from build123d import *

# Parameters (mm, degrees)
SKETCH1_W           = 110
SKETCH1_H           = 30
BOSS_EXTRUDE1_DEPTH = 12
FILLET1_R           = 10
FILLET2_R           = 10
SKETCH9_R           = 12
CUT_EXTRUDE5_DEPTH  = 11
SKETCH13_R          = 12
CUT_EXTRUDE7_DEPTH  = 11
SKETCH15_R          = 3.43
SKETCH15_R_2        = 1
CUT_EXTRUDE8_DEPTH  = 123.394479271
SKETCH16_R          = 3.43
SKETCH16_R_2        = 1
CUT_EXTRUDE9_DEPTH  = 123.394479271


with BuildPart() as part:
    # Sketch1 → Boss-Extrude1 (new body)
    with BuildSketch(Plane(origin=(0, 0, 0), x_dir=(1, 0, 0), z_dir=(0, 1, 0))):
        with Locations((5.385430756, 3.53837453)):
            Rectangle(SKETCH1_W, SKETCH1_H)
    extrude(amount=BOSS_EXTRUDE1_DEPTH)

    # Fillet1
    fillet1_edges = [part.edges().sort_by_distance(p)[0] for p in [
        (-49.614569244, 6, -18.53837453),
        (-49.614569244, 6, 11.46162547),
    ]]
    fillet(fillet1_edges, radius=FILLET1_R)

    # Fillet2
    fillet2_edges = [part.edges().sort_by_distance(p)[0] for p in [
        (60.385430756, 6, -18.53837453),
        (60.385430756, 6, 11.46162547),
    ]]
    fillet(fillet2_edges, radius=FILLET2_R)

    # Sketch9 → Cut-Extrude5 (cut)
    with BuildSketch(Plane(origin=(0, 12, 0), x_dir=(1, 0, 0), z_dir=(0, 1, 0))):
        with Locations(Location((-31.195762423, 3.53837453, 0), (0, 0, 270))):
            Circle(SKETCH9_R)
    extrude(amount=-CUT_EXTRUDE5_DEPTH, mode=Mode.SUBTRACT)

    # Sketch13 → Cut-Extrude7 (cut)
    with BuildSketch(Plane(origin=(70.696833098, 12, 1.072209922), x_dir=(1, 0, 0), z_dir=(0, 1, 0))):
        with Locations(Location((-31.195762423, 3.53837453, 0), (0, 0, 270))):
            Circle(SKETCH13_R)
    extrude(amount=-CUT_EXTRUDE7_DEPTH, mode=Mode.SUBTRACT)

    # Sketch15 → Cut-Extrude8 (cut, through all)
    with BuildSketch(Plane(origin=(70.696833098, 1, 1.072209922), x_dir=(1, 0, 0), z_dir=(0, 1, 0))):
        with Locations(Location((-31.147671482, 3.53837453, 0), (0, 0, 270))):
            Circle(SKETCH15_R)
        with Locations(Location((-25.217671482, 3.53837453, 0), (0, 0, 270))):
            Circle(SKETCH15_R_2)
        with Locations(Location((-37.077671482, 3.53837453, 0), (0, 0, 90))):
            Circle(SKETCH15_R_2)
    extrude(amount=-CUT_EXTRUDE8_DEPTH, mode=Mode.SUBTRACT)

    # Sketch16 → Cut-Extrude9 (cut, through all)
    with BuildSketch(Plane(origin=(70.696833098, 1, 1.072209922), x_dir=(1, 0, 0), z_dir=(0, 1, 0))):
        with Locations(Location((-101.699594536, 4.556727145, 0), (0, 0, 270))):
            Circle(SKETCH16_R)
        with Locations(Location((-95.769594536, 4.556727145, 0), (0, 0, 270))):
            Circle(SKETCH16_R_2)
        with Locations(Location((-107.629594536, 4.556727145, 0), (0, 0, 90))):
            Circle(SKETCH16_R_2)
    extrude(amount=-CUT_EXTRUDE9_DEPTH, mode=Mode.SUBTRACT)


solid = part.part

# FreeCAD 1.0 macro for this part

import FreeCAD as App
import Part
import Sketcher

V = App.Vector
Q = App.Units.Quantity


def edges_at(feature, points):
    """Names of the edges that pass closest to the given points."""
    edges = feature.Shape.Edges
    near = lambda p: min(range(len(edges)), key=lambda i: edges[i].distToShape(Part.Vertex(*p))[0])
    return sorted({f"Edge{near(p) + 1}" for p in points})

doc = App.newDocument("Part")
body = doc.addObject("PartDesign::Body", "Body")

# Sketch on XZ plane
sketch1 = body.newObject("Sketcher::SketchObject", "Sketch")
sketch1.AttachmentSupport = (doc.getObject("XZ_Plane"), [""])
sketch1.MapMode = "FlatFace"
sketch1.addGeometry(Part.LineSegment(V(-49.614569, -18.538375, 0), V(-49.614569, 11.461625, 0)), False)
sketch1.addGeometry(Part.LineSegment(V(-49.614569, 11.461625, 0), V(60.385431, 11.461625, 0)), False)
sketch1.addGeometry(Part.LineSegment(V(60.385431, 11.461625, 0), V(60.385431, -18.538375, 0)), False)
sketch1.addGeometry(Part.LineSegment(V(60.385431, -18.538375, 0), V(-49.614569, -18.538375, 0)), False)
sketch1.addConstraint(Sketcher.Constraint("Coincident", 0, 2, 1, 1))
sketch1.addConstraint(Sketcher.Constraint("Coincident", 1, 2, 2, 1))
sketch1.addConstraint(Sketcher.Constraint("Coincident", 2, 2, 3, 1))
sketch1.addConstraint(Sketcher.Constraint("Coincident", 3, 2, 0, 1))
sketch1.addConstraint(Sketcher.Constraint("Vertical", 0))
sketch1.addConstraint(Sketcher.Constraint("Horizontal", 1))
sketch1.addConstraint(Sketcher.Constraint("Vertical", 2))
sketch1.addConstraint(Sketcher.Constraint("Horizontal", 3))
sketch1.addConstraint(Sketcher.Constraint("DistanceX", 1, 1, 1, 2, Q("110 mm")))
sketch1.addConstraint(Sketcher.Constraint("DistanceY", 0, 1, 0, 2, Q("30 mm")))
sketch1.addConstraint(Sketcher.Constraint("DistanceX", 0, 2, -1, 1, Q("49.614569 mm")))
sketch1.addConstraint(Sketcher.Constraint("DistanceY", -1, 1, 0, 2, Q("11.461625 mm")))
pad1 = body.newObject("PartDesign::Pad", "Pad")
pad1.Profile = sketch1
pad1.Length = 12
pad1.Reversed = True
doc.recompute()

fillet = body.newObject("PartDesign::Fillet", "Fillet")
fillet.Base = (pad1, edges_at(pad1, [(-49.615, 6, -18.538), (-49.615, 6, 11.462)]))
fillet.Radius = 10
doc.recompute()

fillet2 = body.newObject("PartDesign::Fillet", "Fillet001")
fillet2.Base = (fillet, edges_at(fillet, [(60.385, 6, -18.538), (60.385, 6, 11.462)]))
fillet2.Radius = 10

# Sketch on XZ plane
sketch2 = body.newObject("Sketcher::SketchObject", "Sketch001")
sketch2.AttachmentSupport = (doc.getObject("XZ_Plane"), [""])
sketch2.MapMode = "FlatFace"
sketch2.AttachmentOffset = App.Placement(V(0, 0, -12), App.Rotation())
sketch2.addGeometry(Part.Circle(V(-31.195762, -3.538375, 0), V(0, 0, 1), 12), False)
sketch2.addConstraint(Sketcher.Constraint("Diameter", 0, Q("24 mm")))
sketch2.addConstraint(Sketcher.Constraint("DistanceX", 0, 3, -1, 1, Q("31.195762 mm")))
sketch2.addConstraint(Sketcher.Constraint("DistanceY", 0, 3, -1, 1, Q("3.538375 mm")))
pocket1 = body.newObject("PartDesign::Pocket", "Pocket")
pocket1.Profile = sketch2
pocket1.Length = 11
pocket1.Reversed = True

# Sketch on XZ plane
sketch3 = body.newObject("Sketcher::SketchObject", "Sketch002")
sketch3.AttachmentSupport = (doc.getObject("XZ_Plane"), [""])
sketch3.MapMode = "FlatFace"
sketch3.AttachmentOffset = App.Placement(V(0, 0, -12), App.Rotation())
sketch3.addGeometry(Part.Circle(V(39.501071, -2.466165, 0), V(0, 0, 1), 12), False)
sketch3.addConstraint(Sketcher.Constraint("Diameter", 0, Q("24 mm")))
sketch3.addConstraint(Sketcher.Constraint("DistanceX", -1, 1, 0, 3, Q("39.501071 mm")))
sketch3.addConstraint(Sketcher.Constraint("DistanceY", 0, 3, -1, 1, Q("2.466165 mm")))
pocket2 = body.newObject("PartDesign::Pocket", "Pocket001")
pocket2.Profile = sketch3
pocket2.Length = 11
pocket2.Reversed = True

# Sketch on XZ plane
sketch4 = body.newObject("Sketcher::SketchObject", "Sketch003")
sketch4.AttachmentSupport = (doc.getObject("XZ_Plane"), [""])
sketch4.MapMode = "FlatFace"
sketch4.AttachmentOffset = App.Placement(V(0, 0, -1), App.Rotation())
sketch4.addGeometry(Part.Circle(V(39.549162, -2.466165, 0), V(0, 0, 1), 3.43), False)
sketch4.addGeometry(Part.Circle(V(45.479162, -2.466165, 0), V(0, 0, 1), 1), False)
sketch4.addGeometry(Part.Circle(V(33.619162, -2.466165, 0), V(0, 0, 1), 1), False)
sketch4.addConstraint(Sketcher.Constraint("Equal", 1, 2))
sketch4.addConstraint(Sketcher.Constraint("Horizontal", 0, 3, 1, 3))
sketch4.addConstraint(Sketcher.Constraint("Horizontal", 1, 3, 2, 3))
sketch4.addConstraint(Sketcher.Constraint("Diameter", 1, Q("2 mm")))
sketch4.addConstraint(Sketcher.Constraint("Diameter", 0, Q("6.86 mm")))
sketch4.addConstraint(Sketcher.Constraint("DistanceX", 0, 3, 1, 3, Q("5.93 mm")))
sketch4.addConstraint(Sketcher.Constraint("DistanceX", 2, 3, 0, 3, Q("5.93 mm")))
sketch4.addConstraint(Sketcher.Constraint("DistanceX", -1, 1, 0, 3, Q("39.549162 mm")))
sketch4.addConstraint(Sketcher.Constraint("DistanceY", 0, 3, -1, 1, Q("2.466165 mm")))
pocket3 = body.newObject("PartDesign::Pocket", "Pocket002")
pocket3.Profile = sketch4
pocket3.Type = "ThroughAll"
pocket3.Reversed = True

# Sketch on XZ plane
sketch5 = body.newObject("Sketcher::SketchObject", "Sketch004")
sketch5.AttachmentSupport = (doc.getObject("XZ_Plane"), [""])
sketch5.MapMode = "FlatFace"
sketch5.AttachmentOffset = App.Placement(V(0, 0, -1), App.Rotation())
sketch5.addGeometry(Part.Circle(V(-31.002761, -3.484517, 0), V(0, 0, 1), 3.43), False)
sketch5.addGeometry(Part.Circle(V(-25.072761, -3.484517, 0), V(0, 0, 1), 1), False)
sketch5.addGeometry(Part.Circle(V(-36.932761, -3.484517, 0), V(0, 0, 1), 1), False)
sketch5.addConstraint(Sketcher.Constraint("Equal", 1, 2))
sketch5.addConstraint(Sketcher.Constraint("Horizontal", 0, 3, 1, 3))
sketch5.addConstraint(Sketcher.Constraint("Horizontal", 1, 3, 2, 3))
sketch5.addConstraint(Sketcher.Constraint("Diameter", 1, Q("2 mm")))
sketch5.addConstraint(Sketcher.Constraint("Diameter", 0, Q("6.86 mm")))
sketch5.addConstraint(Sketcher.Constraint("DistanceX", 0, 3, 1, 3, Q("5.93 mm")))
sketch5.addConstraint(Sketcher.Constraint("DistanceX", 2, 3, 0, 3, Q("5.93 mm")))
sketch5.addConstraint(Sketcher.Constraint("DistanceX", 0, 3, -1, 1, Q("31.002761 mm")))
sketch5.addConstraint(Sketcher.Constraint("DistanceY", 0, 3, -1, 1, Q("3.484517 mm")))
pocket4 = body.newObject("PartDesign::Pocket", "Pocket003")
pocket4.Profile = sketch5
pocket4.Type = "ThroughAll"
pocket4.Reversed = True

doc.recompute()
